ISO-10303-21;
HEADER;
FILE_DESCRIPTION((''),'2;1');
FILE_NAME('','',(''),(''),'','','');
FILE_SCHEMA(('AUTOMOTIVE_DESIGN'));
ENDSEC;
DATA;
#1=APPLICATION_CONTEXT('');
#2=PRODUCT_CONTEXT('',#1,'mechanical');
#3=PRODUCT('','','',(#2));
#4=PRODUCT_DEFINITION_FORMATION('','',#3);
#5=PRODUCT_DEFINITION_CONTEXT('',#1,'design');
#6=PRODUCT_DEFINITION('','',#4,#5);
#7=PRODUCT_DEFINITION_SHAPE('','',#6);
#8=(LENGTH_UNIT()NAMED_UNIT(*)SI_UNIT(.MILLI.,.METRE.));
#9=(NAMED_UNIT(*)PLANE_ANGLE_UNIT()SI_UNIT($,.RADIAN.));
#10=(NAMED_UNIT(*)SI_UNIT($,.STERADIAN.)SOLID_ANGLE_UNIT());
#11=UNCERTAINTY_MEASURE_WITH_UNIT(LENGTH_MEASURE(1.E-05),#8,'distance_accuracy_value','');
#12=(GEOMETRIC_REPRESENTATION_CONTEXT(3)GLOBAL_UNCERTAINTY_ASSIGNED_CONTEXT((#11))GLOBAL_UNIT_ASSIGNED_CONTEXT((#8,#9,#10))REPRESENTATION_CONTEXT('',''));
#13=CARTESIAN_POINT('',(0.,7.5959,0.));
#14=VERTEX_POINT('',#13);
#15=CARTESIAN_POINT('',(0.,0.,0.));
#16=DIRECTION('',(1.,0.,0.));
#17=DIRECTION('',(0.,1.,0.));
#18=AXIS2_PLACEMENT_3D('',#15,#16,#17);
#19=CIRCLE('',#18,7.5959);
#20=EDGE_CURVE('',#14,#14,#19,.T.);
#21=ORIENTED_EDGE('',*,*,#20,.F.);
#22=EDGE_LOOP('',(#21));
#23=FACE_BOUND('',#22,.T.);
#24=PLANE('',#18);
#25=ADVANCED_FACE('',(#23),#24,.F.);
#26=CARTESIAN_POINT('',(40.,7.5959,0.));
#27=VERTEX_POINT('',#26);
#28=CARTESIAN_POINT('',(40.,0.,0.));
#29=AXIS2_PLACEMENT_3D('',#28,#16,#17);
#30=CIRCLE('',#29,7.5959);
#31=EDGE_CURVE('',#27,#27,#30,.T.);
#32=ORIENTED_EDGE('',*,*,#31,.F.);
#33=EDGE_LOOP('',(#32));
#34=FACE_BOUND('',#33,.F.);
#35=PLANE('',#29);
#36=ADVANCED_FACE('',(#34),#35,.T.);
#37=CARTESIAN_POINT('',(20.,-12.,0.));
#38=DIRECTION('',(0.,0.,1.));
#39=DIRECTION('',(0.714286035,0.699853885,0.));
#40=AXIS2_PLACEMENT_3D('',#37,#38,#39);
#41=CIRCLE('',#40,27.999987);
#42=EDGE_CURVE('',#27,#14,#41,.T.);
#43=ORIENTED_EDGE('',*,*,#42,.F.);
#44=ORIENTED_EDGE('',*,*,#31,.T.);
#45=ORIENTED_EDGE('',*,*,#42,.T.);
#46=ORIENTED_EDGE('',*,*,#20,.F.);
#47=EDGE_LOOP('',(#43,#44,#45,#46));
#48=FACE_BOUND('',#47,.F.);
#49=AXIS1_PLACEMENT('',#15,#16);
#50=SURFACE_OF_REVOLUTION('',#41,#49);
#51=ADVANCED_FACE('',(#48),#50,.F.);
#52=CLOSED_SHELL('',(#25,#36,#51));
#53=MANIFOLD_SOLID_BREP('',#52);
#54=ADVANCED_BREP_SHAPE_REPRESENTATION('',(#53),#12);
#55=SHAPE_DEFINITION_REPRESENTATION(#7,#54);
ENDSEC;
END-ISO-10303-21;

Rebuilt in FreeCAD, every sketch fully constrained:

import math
import FreeCAD as App
import Part
import Sketcher
Q = App.Units.Quantity

doc = App.newDocument("Part")
params = doc.addObject("Spreadsheet::Sheet", "Params")
for row, (alias, value) in enumerate([
    ("sketch1_radius", "28 mm"),
    ("sketch1_width", "40 mm"),
    ("revolution_angle", "360 deg"),
], start=1):
    params.set(f"A{row}", alias)
    params.set(f"B{row}", "=" + value)
    params.setAlias(f"B{row}", alias)

body = doc.addObject("PartDesign::Body", "Body")

# Sketch on XY plane
sketch1 = body.newObject("Sketcher::SketchObject", "Sketch")
sketch1.AttachmentSupport = (doc.getObject("XY_Plane"), [""])
sketch1.MapMode = "FlatFace"
sketch1.addGeometry(Part.LineSegment(App.Vector(0, 7.5959, 0), App.Vector(0, 0, 0)), False)
sketch1.addGeometry(Part.LineSegment(App.Vector(0, 0, 0), App.Vector(40, 0, 0)), False)
sketch1.addGeometry(Part.LineSegment(App.Vector(40, 0, 0), App.Vector(40, 7.5959, 0)), False)
sketch1.addGeometry(Part.ArcOfCircle(Part.Circle(App.Vector(20, -12, 0), App.Vector(0, 0, 1), 27.999987), math.radians(44.415282), math.radians(135.584718)), False)
sketch1.addConstraint(Sketcher.Constraint("Coincident", 0, 2, 1, 1))
sketch1.addConstraint(Sketcher.Constraint("Coincident", 1, 2, 2, 1))
sketch1.addConstraint(Sketcher.Constraint("Coincident", 2, 2, 3, 1))
sketch1.addConstraint(Sketcher.Constraint("Coincident", 3, 2, 0, 1))
sketch1.addConstraint(Sketcher.Constraint("Vertical", 0))
sketch1.addConstraint(Sketcher.Constraint("Horizontal", 1))
sketch1.addConstraint(Sketcher.Constraint("Vertical", 2))
sketch1.addConstraint(Sketcher.Constraint("Coincident", 0, 2, -1, 1))
sketch1.addConstraint(Sketcher.Constraint("Horizontal", 2, 2, 3, 2))
sketch1.addConstraint(Sketcher.Constraint("Radius", 3, Q("28 mm")))
sketch1.addConstraint(Sketcher.Constraint("DistanceX", 1, 1, 1, 2, Q("40 mm")))
sketch1.addConstraint(Sketcher.Constraint("DistanceY", 3, 3, -1, 1, Q("12 mm")))
sketch1.setExpression("Constraints[9]", "Params.sketch1_radius")
sketch1.setExpression("Constraints[10]", "Params.sketch1_width")
revolution = body.newObject("PartDesign::Revolution", "Revolution")
revolution.Profile = sketch1
revolution.ReferenceAxis = (sketch1, ["H_Axis"])
revolution.setExpression("Angle", "Params.revolution_angle")

doc.recompute()
